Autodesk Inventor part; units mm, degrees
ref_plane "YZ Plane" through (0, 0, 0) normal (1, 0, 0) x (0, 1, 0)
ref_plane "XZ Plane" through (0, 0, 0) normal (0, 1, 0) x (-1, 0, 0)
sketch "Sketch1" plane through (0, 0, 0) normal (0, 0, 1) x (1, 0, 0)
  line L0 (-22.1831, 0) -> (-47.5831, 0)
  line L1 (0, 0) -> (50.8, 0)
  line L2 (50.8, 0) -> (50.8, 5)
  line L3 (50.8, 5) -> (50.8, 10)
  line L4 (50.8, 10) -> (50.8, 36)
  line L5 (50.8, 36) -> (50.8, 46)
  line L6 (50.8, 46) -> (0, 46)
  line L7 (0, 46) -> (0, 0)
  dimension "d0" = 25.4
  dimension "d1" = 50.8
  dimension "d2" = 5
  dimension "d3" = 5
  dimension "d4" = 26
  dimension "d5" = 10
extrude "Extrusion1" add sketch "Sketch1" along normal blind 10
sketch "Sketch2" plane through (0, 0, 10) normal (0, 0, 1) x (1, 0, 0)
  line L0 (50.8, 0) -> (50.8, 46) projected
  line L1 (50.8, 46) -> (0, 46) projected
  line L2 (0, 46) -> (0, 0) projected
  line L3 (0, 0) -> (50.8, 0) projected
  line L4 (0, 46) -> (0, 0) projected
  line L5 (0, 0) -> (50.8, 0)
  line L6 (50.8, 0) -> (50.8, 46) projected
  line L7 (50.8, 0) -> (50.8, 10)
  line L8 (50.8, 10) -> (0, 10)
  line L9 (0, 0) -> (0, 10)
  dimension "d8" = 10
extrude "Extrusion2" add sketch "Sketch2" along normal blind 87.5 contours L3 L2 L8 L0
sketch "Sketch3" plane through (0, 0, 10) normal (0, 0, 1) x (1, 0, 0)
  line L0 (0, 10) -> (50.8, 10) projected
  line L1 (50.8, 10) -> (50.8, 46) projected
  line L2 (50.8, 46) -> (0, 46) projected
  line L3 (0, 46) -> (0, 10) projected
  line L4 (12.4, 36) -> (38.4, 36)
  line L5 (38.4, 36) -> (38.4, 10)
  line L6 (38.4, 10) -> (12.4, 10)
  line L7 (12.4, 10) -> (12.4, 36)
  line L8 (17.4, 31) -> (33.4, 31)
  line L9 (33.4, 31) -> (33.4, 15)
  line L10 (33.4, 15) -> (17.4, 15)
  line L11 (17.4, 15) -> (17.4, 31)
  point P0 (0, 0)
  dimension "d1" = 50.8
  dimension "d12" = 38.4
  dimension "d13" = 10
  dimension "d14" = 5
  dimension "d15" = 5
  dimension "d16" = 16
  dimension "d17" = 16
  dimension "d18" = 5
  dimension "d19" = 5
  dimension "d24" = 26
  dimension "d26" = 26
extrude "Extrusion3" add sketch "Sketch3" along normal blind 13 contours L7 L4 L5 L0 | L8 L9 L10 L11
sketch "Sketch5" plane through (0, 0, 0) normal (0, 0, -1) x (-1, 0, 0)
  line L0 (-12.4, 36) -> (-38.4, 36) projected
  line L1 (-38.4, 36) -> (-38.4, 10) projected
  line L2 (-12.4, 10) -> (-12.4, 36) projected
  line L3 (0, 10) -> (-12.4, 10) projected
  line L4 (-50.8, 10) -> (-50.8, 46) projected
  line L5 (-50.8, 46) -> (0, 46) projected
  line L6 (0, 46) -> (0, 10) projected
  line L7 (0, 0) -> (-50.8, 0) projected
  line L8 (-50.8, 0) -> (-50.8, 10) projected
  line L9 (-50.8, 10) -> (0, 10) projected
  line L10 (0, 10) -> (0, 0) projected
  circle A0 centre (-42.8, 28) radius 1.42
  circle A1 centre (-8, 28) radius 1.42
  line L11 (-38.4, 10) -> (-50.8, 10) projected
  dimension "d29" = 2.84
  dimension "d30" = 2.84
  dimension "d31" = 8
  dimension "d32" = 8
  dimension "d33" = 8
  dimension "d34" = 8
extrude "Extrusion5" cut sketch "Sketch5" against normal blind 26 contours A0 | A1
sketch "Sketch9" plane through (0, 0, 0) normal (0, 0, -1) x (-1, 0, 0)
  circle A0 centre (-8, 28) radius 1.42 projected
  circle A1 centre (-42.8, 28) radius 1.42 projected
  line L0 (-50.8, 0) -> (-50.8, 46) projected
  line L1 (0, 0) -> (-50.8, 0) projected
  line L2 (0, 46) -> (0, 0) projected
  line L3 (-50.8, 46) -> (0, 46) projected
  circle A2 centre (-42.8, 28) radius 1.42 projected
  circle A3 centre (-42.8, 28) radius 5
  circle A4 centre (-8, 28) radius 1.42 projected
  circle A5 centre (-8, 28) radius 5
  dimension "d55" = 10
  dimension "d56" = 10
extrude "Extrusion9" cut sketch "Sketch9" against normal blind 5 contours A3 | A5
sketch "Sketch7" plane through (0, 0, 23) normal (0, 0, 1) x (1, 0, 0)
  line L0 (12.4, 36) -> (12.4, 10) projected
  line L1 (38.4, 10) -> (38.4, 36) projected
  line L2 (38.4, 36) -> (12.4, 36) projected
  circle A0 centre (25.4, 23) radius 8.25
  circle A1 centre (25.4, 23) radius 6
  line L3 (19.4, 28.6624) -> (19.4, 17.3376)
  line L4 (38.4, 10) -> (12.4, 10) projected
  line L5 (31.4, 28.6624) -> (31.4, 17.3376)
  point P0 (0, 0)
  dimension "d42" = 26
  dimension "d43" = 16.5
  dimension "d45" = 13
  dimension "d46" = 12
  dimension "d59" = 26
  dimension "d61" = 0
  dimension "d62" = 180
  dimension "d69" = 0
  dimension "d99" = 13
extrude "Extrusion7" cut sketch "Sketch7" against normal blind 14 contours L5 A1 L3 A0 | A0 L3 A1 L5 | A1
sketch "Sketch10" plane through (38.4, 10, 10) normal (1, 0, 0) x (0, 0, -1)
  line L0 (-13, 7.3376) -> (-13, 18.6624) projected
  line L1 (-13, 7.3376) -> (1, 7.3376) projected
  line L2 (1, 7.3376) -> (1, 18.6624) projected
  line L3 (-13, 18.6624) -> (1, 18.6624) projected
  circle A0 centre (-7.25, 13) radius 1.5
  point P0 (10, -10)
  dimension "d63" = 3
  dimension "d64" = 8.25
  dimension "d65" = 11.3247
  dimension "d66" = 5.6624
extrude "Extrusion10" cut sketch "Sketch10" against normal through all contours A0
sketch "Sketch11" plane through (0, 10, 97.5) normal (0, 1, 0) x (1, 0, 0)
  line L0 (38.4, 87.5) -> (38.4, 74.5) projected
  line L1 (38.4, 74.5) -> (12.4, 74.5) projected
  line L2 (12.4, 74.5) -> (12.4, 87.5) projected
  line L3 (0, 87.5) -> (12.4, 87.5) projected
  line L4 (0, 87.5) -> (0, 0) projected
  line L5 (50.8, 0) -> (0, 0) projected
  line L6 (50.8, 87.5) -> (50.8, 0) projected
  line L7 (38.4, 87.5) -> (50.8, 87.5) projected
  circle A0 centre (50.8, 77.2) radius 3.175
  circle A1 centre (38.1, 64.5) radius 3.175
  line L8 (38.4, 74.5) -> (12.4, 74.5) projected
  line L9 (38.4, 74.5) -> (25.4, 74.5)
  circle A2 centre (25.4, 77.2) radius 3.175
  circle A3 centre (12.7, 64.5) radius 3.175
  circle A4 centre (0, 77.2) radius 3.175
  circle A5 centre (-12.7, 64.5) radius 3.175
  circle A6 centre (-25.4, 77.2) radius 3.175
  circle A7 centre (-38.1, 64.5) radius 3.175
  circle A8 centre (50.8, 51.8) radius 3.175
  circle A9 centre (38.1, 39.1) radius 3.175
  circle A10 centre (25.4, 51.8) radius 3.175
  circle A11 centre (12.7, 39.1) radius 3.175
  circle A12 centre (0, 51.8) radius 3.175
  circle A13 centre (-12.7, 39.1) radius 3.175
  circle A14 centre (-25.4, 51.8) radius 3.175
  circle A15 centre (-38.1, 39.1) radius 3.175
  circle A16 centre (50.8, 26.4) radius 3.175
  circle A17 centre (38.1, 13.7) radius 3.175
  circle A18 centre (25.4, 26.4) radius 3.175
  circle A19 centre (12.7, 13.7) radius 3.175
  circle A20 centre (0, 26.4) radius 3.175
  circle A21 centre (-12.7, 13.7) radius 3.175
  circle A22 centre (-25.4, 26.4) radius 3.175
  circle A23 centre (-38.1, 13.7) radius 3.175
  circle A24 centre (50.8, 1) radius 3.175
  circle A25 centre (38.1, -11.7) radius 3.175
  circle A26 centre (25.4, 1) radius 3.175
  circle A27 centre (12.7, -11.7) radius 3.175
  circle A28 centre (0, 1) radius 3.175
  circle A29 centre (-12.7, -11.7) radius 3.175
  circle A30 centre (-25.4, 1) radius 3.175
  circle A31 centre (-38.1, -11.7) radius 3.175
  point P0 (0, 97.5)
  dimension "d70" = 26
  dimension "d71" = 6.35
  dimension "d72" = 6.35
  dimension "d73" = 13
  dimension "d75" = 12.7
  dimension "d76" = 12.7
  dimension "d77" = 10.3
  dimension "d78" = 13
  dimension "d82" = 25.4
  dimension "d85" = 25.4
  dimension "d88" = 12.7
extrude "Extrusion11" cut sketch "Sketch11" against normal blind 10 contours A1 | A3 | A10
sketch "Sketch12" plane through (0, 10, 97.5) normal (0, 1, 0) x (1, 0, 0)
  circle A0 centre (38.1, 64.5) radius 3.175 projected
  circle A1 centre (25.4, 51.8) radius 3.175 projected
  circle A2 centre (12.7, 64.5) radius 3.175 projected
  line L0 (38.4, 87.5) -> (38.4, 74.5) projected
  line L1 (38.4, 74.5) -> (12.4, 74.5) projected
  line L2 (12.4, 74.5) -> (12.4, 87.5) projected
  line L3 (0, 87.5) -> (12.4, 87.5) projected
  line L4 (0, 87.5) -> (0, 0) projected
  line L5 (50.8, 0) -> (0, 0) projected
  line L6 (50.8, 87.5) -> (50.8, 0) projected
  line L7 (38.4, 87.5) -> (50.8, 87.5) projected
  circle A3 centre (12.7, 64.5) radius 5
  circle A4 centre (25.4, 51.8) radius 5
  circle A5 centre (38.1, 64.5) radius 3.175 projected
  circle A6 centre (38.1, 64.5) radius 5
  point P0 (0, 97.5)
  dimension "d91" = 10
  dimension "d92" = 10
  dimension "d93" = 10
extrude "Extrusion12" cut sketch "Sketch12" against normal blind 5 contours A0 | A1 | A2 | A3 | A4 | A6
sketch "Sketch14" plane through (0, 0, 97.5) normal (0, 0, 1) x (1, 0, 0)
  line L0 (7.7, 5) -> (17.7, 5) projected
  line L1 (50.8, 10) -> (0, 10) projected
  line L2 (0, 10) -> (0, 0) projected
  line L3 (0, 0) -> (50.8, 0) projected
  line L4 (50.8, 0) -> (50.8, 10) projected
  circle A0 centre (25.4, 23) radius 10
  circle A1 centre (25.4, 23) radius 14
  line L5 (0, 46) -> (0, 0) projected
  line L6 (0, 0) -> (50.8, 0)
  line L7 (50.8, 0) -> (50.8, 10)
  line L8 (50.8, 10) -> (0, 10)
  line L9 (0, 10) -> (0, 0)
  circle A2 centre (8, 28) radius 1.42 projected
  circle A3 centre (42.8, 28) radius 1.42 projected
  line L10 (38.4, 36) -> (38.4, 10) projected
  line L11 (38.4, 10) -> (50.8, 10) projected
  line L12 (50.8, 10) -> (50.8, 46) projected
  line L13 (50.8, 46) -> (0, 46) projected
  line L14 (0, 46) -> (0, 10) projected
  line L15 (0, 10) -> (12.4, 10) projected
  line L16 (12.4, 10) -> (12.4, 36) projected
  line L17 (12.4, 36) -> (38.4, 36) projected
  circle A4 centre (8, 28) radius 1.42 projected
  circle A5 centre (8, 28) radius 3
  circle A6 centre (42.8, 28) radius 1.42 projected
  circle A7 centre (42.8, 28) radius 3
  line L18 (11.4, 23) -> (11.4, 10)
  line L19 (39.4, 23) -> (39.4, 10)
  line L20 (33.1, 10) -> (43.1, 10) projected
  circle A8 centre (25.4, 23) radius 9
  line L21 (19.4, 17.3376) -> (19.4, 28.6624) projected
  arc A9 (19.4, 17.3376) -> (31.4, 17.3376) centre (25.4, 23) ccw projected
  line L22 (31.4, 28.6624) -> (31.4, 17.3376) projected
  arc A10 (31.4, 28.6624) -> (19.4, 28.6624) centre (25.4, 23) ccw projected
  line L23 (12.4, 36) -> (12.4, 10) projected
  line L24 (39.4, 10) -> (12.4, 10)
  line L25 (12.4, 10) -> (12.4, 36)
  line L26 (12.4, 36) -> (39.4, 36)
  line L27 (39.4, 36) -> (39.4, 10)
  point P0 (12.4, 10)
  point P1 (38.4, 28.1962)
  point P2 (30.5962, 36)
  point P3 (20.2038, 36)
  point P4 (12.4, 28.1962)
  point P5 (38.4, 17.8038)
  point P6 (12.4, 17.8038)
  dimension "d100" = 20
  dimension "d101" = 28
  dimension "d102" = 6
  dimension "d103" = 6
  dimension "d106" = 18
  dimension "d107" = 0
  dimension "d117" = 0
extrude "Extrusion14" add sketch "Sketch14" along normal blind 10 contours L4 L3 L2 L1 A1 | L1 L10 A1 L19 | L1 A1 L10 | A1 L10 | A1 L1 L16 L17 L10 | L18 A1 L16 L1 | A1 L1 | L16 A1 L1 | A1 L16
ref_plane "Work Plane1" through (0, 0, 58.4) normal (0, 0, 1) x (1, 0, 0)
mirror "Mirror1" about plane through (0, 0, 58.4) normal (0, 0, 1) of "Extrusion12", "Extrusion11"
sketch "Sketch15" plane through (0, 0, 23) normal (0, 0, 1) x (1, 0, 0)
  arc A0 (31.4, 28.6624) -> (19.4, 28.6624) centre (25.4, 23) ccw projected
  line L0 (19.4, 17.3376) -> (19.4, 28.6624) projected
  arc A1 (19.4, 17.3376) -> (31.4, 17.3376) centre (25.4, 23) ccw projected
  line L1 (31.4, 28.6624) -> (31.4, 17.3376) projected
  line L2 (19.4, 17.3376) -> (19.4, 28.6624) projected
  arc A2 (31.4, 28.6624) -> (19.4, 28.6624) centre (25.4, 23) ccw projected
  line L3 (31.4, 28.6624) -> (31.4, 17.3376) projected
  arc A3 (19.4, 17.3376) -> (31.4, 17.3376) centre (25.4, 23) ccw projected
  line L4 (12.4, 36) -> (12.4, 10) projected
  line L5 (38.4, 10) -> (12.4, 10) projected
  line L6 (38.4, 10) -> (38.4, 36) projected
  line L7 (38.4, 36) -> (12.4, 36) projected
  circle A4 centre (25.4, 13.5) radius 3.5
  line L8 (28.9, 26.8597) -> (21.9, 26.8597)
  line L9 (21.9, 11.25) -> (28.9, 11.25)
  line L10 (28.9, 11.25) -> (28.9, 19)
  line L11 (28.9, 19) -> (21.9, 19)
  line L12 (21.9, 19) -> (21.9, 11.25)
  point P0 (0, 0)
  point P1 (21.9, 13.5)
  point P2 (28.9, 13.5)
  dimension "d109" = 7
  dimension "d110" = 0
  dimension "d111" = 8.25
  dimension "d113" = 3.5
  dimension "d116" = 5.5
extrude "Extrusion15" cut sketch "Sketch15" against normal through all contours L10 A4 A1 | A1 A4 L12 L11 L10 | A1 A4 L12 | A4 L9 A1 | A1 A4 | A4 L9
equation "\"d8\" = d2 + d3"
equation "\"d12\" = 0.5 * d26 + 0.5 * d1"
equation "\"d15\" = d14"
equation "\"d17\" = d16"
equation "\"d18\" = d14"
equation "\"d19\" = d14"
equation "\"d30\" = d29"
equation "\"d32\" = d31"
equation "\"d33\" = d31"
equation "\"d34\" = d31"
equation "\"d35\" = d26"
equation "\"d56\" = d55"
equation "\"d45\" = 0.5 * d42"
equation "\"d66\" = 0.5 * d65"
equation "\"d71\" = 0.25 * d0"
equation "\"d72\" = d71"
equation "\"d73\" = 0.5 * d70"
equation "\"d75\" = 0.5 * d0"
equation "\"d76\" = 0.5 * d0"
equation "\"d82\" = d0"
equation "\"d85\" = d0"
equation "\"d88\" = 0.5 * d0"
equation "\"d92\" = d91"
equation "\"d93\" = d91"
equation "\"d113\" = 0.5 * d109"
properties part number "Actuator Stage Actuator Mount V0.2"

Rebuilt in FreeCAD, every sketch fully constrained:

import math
import FreeCAD as App
import Part
import Sketcher
from FreeCAD import Vector


def add_polygon(sketch, points):
    """Adds a closed chain of lines whose ends are joined by coincident constraints."""
    first, n = sketch.GeometryCount, len(points)
    for a, b in zip(points, points[1:] + points[:1]):
        sketch.addGeometry(Part.LineSegment(App.Vector(*a, 0), App.Vector(*b, 0)), False)
    for i in range(n):
        sketch.addConstraint(Sketcher.Constraint("Coincident", first + i, 2, first + (i + 1) % n, 1))

doc = App.newDocument("Part")
body = doc.addObject("PartDesign::Body", "Body")

sketch1 = doc.addObject("Sketcher::SketchObject", "Sketch")
body.addObject(sketch1)
sketch1.AttachmentSupport = (doc.XY_Plane, [""])
sketch1.MapMode = "FlatFace"
add_polygon(sketch1, [(0, 46), (0, 0), (51, 0), (51, 46)])
sketch1.addConstraint([
    Sketcher.Constraint("Vertical", 0),
    Sketcher.Constraint("Horizontal", 1),
    Sketcher.Constraint("Vertical", 2),
    Sketcher.Constraint("Horizontal", 3),
    Sketcher.Constraint("Coincident", 0, 2, -1, 1),
    Sketcher.Constraint("DistanceX", 1, 1, 1, 2, 50.8),
    Sketcher.Constraint("DistanceY", 0, 2, 0, 1, 46.0),
])
pad1 = doc.addObject("PartDesign::Pad", "Pad")
body.addObject(pad1)
pad1.Profile = sketch1
pad1.Length = 10

sketch2 = doc.addObject("Sketcher::SketchObject", "Sketch001")
body.addObject(sketch2)
sketch2.AttachmentSupport = (doc.XY_Plane, [""])
sketch2.MapMode = "FlatFace"
sketch2.AttachmentOffset = App.Placement(Vector(0, 0, 10), App.Rotation())
add_polygon(sketch2, [(0, 0), (51, 0), (51, 10), (0, 10)])
sketch2.addConstraint([
    Sketcher.Constraint("Horizontal", 0),
    Sketcher.Constraint("Vertical", 1),
    Sketcher.Constraint("Horizontal", 2),
    Sketcher.Constraint("Vertical", 3),
    Sketcher.Constraint("Coincident", 3, 2, -1, 1),
    Sketcher.Constraint("DistanceY", 1, 1, 1, 2, 10.0),
    Sketcher.Constraint("DistanceX", 0, 1, 0, 2, 50.8),
])
pad2 = doc.addObject("PartDesign::Pad", "Pad001")
body.addObject(pad2)
pad2.Profile = sketch2
pad2.Length = 87.5

sketch3 = doc.addObject("Sketcher::SketchObject", "Sketch002")
body.addObject(sketch3)
sketch3.AttachmentSupport = (doc.XY_Plane, [""])
sketch3.MapMode = "FlatFace"
sketch3.AttachmentOffset = App.Placement(Vector(0, 0, 10), App.Rotation())
add_polygon(sketch3, [(12, 36), (12, 10), (38, 10), (38, 36)])
sketch3.addConstraint([
    Sketcher.Constraint("Vertical", 0),
    Sketcher.Constraint("Horizontal", 1),
    Sketcher.Constraint("Vertical", 2),
    Sketcher.Constraint("Horizontal", 3),
    Sketcher.Constraint("Equal", 3, 0),
    Sketcher.Constraint("DistanceX", 1, 1, 1, 2, 26.0),
    Sketcher.Constraint("DistanceY", -1, 1, 0, 2, 10.0),
    Sketcher.Constraint("DistanceX", -1, 1, 1, 2, 38.4),
])
pad3 = doc.addObject("PartDesign::Pad", "Pad002")
body.addObject(pad3)
pad3.Profile = sketch3
pad3.Length = 13

sketch4 = doc.addObject("Sketcher::SketchObject", "Sketch003")
body.addObject(sketch4)
sketch4.AttachmentSupport = (doc.XY_Plane, [""])
sketch4.MapMode = "FlatFace"
sketch4.addGeometry([
    Part.Circle(Vector(42.8, 28, 0), Vector(0, 0, 1), 1.4),
    Part.Circle(Vector(8, 28, 0), Vector(0, 0, 1), 1.4),
], False)
sketch4.addConstraint([
    Sketcher.Constraint("Equal", 0, 1),
    Sketcher.Constraint("Horizontal", 0, 3, 1, 3),
    Sketcher.Constraint("Diameter", 0, 2.84),
    Sketcher.Constraint("DistanceX", -1, 1, 1, 3, 8.0),
    Sketcher.Constraint("DistanceY", -1, 1, 0, 3, 28.0),
    Sketcher.Constraint("DistanceX", -1, 1, 0, 3, 42.8),
])
pocket1 = doc.addObject("PartDesign::Pocket", "Pocket")
body.addObject(pocket1)
pocket1.Profile = sketch4
pocket1.Length = 26
pocket1.Reversed = True

sketch5 = doc.addObject("Sketcher::SketchObject", "Sketch004")
body.addObject(sketch5)
sketch5.AttachmentSupport = (doc.XY_Plane, [""])
sketch5.MapMode = "FlatFace"
sketch5.addGeometry([
    Part.Circle(Vector(42.8, 28, 0), Vector(0, 0, 1), 5),
    Part.Circle(Vector(42.8, 28, 0), Vector(0, 0, 1), 1.4),
    Part.Circle(Vector(8, 28, 0), Vector(0, 0, 1), 5),
    Part.Circle(Vector(8, 28, 0), Vector(0, 0, 1), 1.4),
], False)
sketch5.addConstraint([
    Sketcher.Constraint("Coincident", 1, 3, 0, 3),
    Sketcher.Constraint("Coincident", 3, 3, 2, 3),
    Sketcher.Constraint("Equal", 0, 2),
    Sketcher.Constraint("Equal", 1, 3),
    Sketcher.Constraint("Horizontal", 1, 3, 2, 3),
    Sketcher.Constraint("Diameter", 0, 10.0),
    Sketcher.Constraint("Diameter", 1, 2.84),
    Sketcher.Constraint("DistanceY", -1, 1, 0, 3, 28.0),
    Sketcher.Constraint("DistanceX", -1, 1, 2, 3, 8.0),
    Sketcher.Constraint("DistanceX", -1, 1, 0, 3, 42.8),
])
pocket2 = doc.addObject("PartDesign::Pocket", "Pocket001")
body.addObject(pocket2)
pocket2.Profile = sketch5
pocket2.Length = 5
pocket2.Reversed = True

sketch6 = doc.addObject("Sketcher::SketchObject", "Sketch005")
body.addObject(sketch6)
sketch6.AttachmentSupport = (doc.XY_Plane, [""])
sketch6.MapMode = "FlatFace"
sketch6.AttachmentOffset = App.Placement(Vector(0, 0, 23), App.Rotation())
sketch6.addGeometry([
    Part.ArcOfCircle(Part.Circle(Vector(25, 23, 0), Vector(0, 0, 1), 8), math.radians(43), math.radians(137)),
    Part.LineSegment(Vector(19, 29, 0), Vector(19, 17, 0)),
    Part.ArcOfCircle(Part.Circle(Vector(25, 23, 0), Vector(0, 0, 1), 8), math.radians(-137), math.radians(-43)),
    Part.LineSegment(Vector(31, 17, 0), Vector(31, 29, 0)),
], False)
sketch6.addConstraint([
    Sketcher.Constraint("Coincident", 0, 2, 1, 1),
    Sketcher.Constraint("Coincident", 1, 2, 2, 1),
    Sketcher.Constraint("Coincident", 2, 2, 3, 1),
    Sketcher.Constraint("Coincident", 3, 2, 0, 1),
    Sketcher.Constraint("Vertical", 1),
    Sketcher.Constraint("Vertical", 3),
    Sketcher.Constraint("Coincident", 2, 3, 0, 3),
    Sketcher.Constraint("Equal", 0, 2),
    Sketcher.Constraint("Horizontal", 1, 2, 2, 2),
    Sketcher.Constraint("Radius", 0, 8.25),
    Sketcher.Constraint("DistanceX", 1, 2, 2, 2, 12.0),
    Sketcher.Constraint("DistanceY", -1, 1, 0, 3, 23.0),
    Sketcher.Constraint("DistanceX", -1, 1, 0, 3, 25.4),
])
pocket3 = doc.addObject("PartDesign::Pocket", "Pocket002")
body.addObject(pocket3)
pocket3.Profile = sketch6
pocket3.Length = 14

sketch7 = doc.addObject("Sketcher::SketchObject", "Sketch006")
body.addObject(sketch7)
sketch7.AttachmentSupport = (doc.YZ_Plane, [""])
sketch7.MapMode = "FlatFace"
sketch7.AttachmentOffset = App.Placement(Vector(0, 0, 38.4), App.Rotation())
sketch7.addGeometry(Part.Circle(Vector(23, 17.2, 0), Vector(0, 0, 1), 1.5), False)
sketch7.addConstraint([
    Sketcher.Constraint("Diameter", 0, 3.0),
    Sketcher.Constraint("DistanceX", -1, 1, 0, 3, 23.0),
    Sketcher.Constraint("DistanceY", -1, 1, 0, 3, 17.25),
])
pocket4 = doc.addObject("PartDesign::Pocket", "Pocket003")
body.addObject(pocket4)
pocket4.Profile = sketch7
pocket4.Type = "ThroughAll"

sketch8 = doc.addObject("Sketcher::SketchObject", "Sketch007")
body.addObject(sketch8)
sketch8.AttachmentSupport = (doc.XZ_Plane, [""])
sketch8.MapMode = "FlatFace"
sketch8.AttachmentOffset = App.Placement(Vector(0, 0, -10), App.Rotation())
sketch8.addGeometry([
    Part.Circle(Vector(38.1, 33, 0), Vector(0, 0, 1), 3.2),
    Part.Circle(Vector(12.7, 33, 0), Vector(0, 0, 1), 3.2),
    Part.Circle(Vector(25.4, 45.7, 0), Vector(0, 0, 1), 3.2),
], False)
sketch8.addConstraint([
    Sketcher.Constraint("Equal", 0, 1),
    Sketcher.Constraint("Equal", 1, 2),
    Sketcher.Constraint("Horizontal", 0, 3, 1, 3),
    Sketcher.Constraint("Diameter", 0, 6.35),
    Sketcher.Constraint("DistanceX", -1, 1, 1, 3, 12.7),
    Sketcher.Constraint("DistanceX", -1, 1, 2, 3, 25.4),
    Sketcher.Constraint("DistanceX", 1, 3, 0, 3, 25.4),
    Sketcher.Constraint("DistanceY", 1, 3, 2, 3, 12.7),
    Sketcher.Constraint("DistanceY", -1, 1, 0, 3, 33.0),
])
pocket5 = doc.addObject("PartDesign::Pocket", "Pocket004")
body.addObject(pocket5)
pocket5.Profile = sketch8
pocket5.Length = 10
pocket5.Reversed = True

sketch9 = doc.addObject("Sketcher::SketchObject", "Sketch008")
body.addObject(sketch9)
sketch9.AttachmentSupport = (doc.XZ_Plane, [""])
sketch9.MapMode = "FlatFace"
sketch9.AttachmentOffset = App.Placement(Vector(0, 0, -10), App.Rotation())
sketch9.addGeometry([
    Part.Circle(Vector(38, 33, 0), Vector(0, 0, 1), 5),
    Part.Circle(Vector(25, 46, 0), Vector(0, 0, 1), 5),
    Part.Circle(Vector(13, 33, 0), Vector(0, 0, 1), 5),
], False)
sketch9.addConstraint([
    Sketcher.Constraint("Equal", 0, 1),
    Sketcher.Constraint("Equal", 1, 2),
    Sketcher.Constraint("Horizontal", 0, 3, 2, 3),
    Sketcher.Constraint("Diameter", 0, 10.0),
    Sketcher.Constraint("DistanceY", -1, 1, 0, 3, 33.0),
    Sketcher.Constraint("DistanceX", -1, 1, 0, 3, 38.1),
    Sketcher.Constraint("DistanceX", -1, 1, 1, 3, 25.4),
    Sketcher.Constraint("DistanceY", -1, 1, 1, 3, 45.7),
    Sketcher.Constraint("DistanceX", -1, 1, 2, 3, 12.7),
])
pocket6 = doc.addObject("PartDesign::Pocket", "Pocket005")
body.addObject(pocket6)
pocket6.Profile = sketch9
pocket6.Length = 5
pocket6.Reversed = True

sketch10 = doc.addObject("Sketcher::SketchObject", "Sketch009")
body.addObject(sketch10)
sketch10.AttachmentSupport = (doc.XY_Plane, [""])
sketch10.MapMode = "FlatFace"
sketch10.AttachmentOffset = App.Placement(Vector(0, 0, 97.5), App.Rotation())
sketch10.addGeometry([
    Part.LineSegment(Vector(51, 0, 0), Vector(51, 10, 0)),
    Part.LineSegment(Vector(51, 10, 0), Vector(39, 10, 0)),
    Part.LineSegment(Vector(39, 10, 0), Vector(39, 23, 0)),
    Part.ArcOfCircle(Part.Circle(Vector(25, 23, 0), Vector(0, 0, 1), 14), math.radians(0), math.radians(68)),
    Part.LineSegment(Vector(31, 36, 0), Vector(20, 36, 0)),
    Part.ArcOfCircle(Part.Circle(Vector(25, 23, 0), Vector(0, 0, 1), 14), math.radians(112), math.radians(180)),
    Part.LineSegment(Vector(11, 23, 0), Vector(11, 10, 0)),
    Part.LineSegment(Vector(11, 10, 0), Vector(0, 10, 0)),
    Part.LineSegment(Vector(0, 10, 0), Vector(0, 0, 0)),
    Part.LineSegment(Vector(0, 0, 0), Vector(51, 0, 0)),
    Part.Circle(Vector(25, 23, 0), Vector(0, 0, 1), 10),
], False)
sketch10.addConstraint([
    Sketcher.Constraint("Coincident", 0, 2, 1, 1),
    Sketcher.Constraint("Coincident", 1, 2, 2, 1),
    Sketcher.Constraint("Tangent", 2, 2, 3, 1),
    Sketcher.Constraint("Coincident", 3, 2, 4, 1),
    Sketcher.Constraint("Coincident", 4, 2, 5, 1),
    Sketcher.Constraint("Tangent", 5, 2, 6, 1),
    Sketcher.Constraint("Coincident", 6, 2, 7, 1),
    Sketcher.Constraint("Coincident", 7, 2, 8, 1),
    Sketcher.Constraint("Coincident", 8, 2, 9, 1),
    Sketcher.Constraint("Coincident", 9, 2, 0, 1),
    Sketcher.Constraint("Vertical", 0),
    Sketcher.Constraint("Horizontal", 1),
    Sketcher.Constraint("Vertical", 2),
    Sketcher.Constraint("Horizontal", 4),
    Sketcher.Constraint("Vertical", 6),
    Sketcher.Constraint("Horizontal", 7),
    Sketcher.Constraint("Vertical", 8),
    Sketcher.Constraint("Horizontal", 9),
    Sketcher.Constraint("Coincident", 8, 2, -1, 1),
    Sketcher.Constraint("Coincident", 5, 3, 3, 3),
    Sketcher.Constraint("Coincident", 10, 3, 3, 3),
    Sketcher.Constraint("Equal", 3, 5),
    Sketcher.Constraint("Horizontal", 1, 2, 6, 2),
    Sketcher.Constraint("Equal", 1, 7),
    Sketcher.Constraint("Diameter", 10, 20.0),
    Sketcher.Constraint("Radius", 3, 14.0),
    Sketcher.Constraint("DistanceY", 0, 1, 0, 2, 10.0),
    Sketcher.Constraint("DistanceY", 2, 1, 2, 2, 13.0),
    Sketcher.Constraint("DistanceX", 1, 2, 1, 1, 11.4),
    Sketcher.Constraint("DistanceY", -1, 1, 3, 2, 36.0),
])
pad4 = doc.addObject("PartDesign::Pad", "Pad003")
body.addObject(pad4)
pad4.Profile = sketch10
pad4.Length = 10
doc.recompute()

datumplane = doc.addObject("PartDesign::Plane", "DatumPlane")
body.addObject(datumplane)
datumplane.AttachmentSupport = (doc.XY_Plane, [""])
datumplane.MapMode = "FlatFace"
datumplane.AttachmentOffset = App.Placement(Vector(0, 0, 58.4), App.Rotation())
mirrored = doc.addObject("PartDesign::Mirrored", "Mirrored")
body.addObject(mirrored)
mirrored.Originals = [pocket6, pocket5]
mirrored.MirrorPlane = (datumplane, [""])
body.Tip = mirrored

sketch11 = doc.addObject("Sketcher::SketchObject", "Sketch010")
body.addObject(sketch11)
sketch11.AttachmentSupport = (doc.XY_Plane, [""])
sketch11.MapMode = "FlatFace"
sketch11.AttachmentOffset = App.Placement(Vector(0, 0, 23), App.Rotation())
sketch11.addGeometry([
    Part.LineSegment(Vector(28.9, 13.5, 0), Vector(28.9, 19, 0)),
    Part.LineSegment(Vector(28.9, 19, 0), Vector(21.9, 19, 0)),
    Part.LineSegment(Vector(21.9, 19, 0), Vector(21.9, 13.5, 0)),
    Part.ArcOfCircle(Part.Circle(Vector(25.4, 13.5, 0), Vector(0, 0, 1), 3.5), math.radians(180), math.radians(360)),
], False)
sketch11.addConstraint([
    Sketcher.Constraint("Coincident", 0, 2, 1, 1),
    Sketcher.Constraint("Coincident", 1, 2, 2, 1),
    Sketcher.Constraint("Tangent", 2, 2, 3, 1),
    Sketcher.Constraint("Tangent", 3, 2, 0, 1),
    Sketcher.Constraint("Vertical", 0),
    Sketcher.Constraint("Horizontal", 1),
    Sketcher.Constraint("Vertical", 2),
    Sketcher.Constraint("Radius", 3, 3.5),
    Sketcher.Constraint("DistanceY", 0, 1, 0, 2, 5.5),
    Sketcher.Constraint("DistanceY", -1, 1, 0, 2, 19.0),
    Sketcher.Constraint("DistanceX", -1, 1, 3, 3, 25.4),
])
pocket7 = doc.addObject("PartDesign::Pocket", "Pocket006")
body.addObject(pocket7)
pocket7.Profile = sketch11
pocket7.Type = "ThroughAll"

doc.recompute()
